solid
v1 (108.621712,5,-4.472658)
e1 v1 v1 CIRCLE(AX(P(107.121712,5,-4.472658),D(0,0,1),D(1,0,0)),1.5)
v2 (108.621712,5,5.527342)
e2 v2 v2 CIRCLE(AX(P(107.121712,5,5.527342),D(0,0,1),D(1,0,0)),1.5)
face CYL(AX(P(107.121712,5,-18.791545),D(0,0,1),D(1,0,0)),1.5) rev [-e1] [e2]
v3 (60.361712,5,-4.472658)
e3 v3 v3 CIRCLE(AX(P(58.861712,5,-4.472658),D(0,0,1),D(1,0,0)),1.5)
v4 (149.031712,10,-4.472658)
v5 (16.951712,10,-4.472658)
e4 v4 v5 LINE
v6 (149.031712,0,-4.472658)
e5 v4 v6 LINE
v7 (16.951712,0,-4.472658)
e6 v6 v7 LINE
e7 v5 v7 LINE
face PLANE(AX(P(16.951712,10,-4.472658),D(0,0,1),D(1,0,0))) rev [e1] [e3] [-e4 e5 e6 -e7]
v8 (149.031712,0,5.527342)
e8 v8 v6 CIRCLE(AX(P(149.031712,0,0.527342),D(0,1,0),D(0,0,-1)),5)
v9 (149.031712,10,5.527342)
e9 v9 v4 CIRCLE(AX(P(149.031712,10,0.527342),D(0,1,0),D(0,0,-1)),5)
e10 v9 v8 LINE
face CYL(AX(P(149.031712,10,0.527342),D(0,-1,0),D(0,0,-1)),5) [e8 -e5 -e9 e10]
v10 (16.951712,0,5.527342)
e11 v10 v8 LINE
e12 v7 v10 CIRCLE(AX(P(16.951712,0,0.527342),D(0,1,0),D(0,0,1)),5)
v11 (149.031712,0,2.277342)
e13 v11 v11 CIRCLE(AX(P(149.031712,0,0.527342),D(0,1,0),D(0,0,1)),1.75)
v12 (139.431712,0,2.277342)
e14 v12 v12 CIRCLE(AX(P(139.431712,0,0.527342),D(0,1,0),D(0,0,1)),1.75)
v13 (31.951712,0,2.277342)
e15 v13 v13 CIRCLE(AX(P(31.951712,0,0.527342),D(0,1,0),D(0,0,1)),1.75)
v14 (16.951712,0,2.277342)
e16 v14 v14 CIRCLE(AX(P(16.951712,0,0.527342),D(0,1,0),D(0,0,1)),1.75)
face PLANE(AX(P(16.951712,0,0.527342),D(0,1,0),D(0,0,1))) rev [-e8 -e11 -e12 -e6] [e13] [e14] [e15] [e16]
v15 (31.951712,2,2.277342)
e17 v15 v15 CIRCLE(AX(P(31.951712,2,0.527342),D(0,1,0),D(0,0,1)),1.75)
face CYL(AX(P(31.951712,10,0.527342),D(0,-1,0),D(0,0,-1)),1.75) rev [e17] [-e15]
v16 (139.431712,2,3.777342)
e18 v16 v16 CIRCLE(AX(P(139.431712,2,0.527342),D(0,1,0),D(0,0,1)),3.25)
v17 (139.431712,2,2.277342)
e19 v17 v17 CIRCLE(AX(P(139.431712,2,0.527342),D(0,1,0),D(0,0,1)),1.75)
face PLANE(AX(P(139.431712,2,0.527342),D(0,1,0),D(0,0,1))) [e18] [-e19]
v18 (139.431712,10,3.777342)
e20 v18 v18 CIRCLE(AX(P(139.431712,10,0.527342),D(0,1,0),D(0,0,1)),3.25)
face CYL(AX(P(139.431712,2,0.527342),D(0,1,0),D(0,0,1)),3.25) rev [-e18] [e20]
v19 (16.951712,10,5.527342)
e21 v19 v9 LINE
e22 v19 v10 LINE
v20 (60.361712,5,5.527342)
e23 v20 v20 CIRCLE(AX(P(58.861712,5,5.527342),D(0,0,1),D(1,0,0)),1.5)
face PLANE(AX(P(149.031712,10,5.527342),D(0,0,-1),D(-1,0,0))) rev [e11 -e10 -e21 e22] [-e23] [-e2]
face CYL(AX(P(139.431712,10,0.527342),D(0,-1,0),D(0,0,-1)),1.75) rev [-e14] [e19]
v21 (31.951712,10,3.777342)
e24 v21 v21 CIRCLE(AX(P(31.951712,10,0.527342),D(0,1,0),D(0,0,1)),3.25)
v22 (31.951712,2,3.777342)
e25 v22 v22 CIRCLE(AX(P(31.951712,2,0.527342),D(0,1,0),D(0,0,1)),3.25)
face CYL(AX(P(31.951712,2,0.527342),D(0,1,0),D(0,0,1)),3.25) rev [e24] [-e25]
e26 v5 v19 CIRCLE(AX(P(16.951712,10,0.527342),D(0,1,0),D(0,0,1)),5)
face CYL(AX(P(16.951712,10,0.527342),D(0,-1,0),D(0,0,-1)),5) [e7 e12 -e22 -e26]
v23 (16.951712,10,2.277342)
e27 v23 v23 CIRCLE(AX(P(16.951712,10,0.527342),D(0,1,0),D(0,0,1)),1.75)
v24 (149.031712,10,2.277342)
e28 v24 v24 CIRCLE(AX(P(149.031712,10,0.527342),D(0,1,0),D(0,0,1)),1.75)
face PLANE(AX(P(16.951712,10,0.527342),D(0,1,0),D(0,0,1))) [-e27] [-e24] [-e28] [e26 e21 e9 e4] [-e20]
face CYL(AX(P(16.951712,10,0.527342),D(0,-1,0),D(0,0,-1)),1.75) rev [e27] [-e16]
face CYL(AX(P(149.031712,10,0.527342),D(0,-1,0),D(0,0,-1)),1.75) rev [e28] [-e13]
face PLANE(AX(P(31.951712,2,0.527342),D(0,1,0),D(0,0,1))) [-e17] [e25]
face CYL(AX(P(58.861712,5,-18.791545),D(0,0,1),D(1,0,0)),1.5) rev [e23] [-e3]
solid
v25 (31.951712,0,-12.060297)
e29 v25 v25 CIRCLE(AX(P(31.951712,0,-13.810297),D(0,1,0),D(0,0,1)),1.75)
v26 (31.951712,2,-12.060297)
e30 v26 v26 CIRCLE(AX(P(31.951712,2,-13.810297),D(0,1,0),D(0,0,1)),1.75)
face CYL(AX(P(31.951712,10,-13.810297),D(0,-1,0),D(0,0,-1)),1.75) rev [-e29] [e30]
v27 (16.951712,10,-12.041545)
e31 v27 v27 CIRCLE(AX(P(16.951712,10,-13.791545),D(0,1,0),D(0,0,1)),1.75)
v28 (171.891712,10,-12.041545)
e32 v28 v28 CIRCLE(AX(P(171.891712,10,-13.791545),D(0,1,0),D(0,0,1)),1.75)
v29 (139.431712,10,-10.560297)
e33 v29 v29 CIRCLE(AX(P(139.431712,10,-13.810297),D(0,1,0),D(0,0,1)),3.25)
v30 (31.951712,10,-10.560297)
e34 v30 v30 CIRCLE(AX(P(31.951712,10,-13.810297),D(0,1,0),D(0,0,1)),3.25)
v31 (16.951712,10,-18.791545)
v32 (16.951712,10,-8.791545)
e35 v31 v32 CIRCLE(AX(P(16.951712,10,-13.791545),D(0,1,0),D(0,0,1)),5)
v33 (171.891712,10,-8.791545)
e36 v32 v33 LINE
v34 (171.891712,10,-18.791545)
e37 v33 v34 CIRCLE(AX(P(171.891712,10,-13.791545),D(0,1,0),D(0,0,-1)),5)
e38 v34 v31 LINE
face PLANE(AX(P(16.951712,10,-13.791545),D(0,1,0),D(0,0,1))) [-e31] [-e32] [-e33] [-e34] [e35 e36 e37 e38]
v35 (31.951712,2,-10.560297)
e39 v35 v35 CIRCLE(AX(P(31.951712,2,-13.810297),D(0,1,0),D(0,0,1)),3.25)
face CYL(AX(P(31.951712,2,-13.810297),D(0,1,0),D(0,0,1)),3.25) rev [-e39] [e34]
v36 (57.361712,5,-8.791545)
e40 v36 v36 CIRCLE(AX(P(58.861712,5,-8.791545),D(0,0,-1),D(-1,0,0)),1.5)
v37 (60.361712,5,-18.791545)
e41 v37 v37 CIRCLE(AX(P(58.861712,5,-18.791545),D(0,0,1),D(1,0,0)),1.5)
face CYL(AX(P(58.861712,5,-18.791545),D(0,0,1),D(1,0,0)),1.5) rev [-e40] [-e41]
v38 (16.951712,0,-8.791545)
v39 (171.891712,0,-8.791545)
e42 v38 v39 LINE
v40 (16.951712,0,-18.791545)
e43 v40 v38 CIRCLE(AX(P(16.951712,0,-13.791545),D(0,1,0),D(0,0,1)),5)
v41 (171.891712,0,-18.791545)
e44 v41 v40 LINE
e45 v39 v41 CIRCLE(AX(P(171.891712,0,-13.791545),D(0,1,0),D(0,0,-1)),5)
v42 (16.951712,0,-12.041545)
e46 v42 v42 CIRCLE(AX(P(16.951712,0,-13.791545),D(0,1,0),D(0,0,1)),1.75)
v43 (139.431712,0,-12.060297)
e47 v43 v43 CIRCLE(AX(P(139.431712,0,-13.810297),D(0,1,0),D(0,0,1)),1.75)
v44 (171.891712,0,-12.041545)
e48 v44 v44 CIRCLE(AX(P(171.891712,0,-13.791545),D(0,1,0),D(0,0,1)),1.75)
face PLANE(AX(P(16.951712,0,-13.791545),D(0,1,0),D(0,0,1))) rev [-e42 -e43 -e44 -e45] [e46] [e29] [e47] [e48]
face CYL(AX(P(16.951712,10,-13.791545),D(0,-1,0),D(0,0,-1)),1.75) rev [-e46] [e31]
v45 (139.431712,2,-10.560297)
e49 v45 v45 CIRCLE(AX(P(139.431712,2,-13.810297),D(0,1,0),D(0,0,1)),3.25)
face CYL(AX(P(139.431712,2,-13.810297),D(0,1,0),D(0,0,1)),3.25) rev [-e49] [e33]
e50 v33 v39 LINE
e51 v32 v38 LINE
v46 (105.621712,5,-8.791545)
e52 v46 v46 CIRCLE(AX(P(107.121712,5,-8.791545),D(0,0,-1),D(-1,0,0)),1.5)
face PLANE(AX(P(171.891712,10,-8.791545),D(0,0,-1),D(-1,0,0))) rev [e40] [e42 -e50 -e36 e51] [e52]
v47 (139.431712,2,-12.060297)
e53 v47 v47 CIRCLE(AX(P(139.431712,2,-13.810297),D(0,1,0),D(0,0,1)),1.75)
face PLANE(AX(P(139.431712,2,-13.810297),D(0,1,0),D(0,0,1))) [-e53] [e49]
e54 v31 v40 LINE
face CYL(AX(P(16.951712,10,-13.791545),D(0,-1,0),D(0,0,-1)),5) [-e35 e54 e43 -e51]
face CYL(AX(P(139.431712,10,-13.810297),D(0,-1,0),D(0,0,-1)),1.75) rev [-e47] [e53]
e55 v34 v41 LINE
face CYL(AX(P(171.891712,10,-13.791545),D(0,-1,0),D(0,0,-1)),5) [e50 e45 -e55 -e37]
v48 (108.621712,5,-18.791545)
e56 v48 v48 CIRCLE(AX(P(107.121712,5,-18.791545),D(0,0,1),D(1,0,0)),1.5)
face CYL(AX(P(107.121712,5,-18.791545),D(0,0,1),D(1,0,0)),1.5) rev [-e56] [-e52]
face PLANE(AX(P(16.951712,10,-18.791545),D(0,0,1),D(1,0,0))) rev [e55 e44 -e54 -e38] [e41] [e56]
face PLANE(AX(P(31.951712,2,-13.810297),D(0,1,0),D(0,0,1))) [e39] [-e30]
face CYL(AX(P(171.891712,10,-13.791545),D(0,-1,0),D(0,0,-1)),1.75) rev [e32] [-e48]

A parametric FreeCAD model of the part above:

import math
import FreeCAD as App
import Part
import Sketcher
from FreeCAD import Vector

doc = App.newDocument("Part")
body = doc.addObject("PartDesign::Body", "Body")

# Sketch on XZ plane
sketch1 = body.newObject("Sketcher::SketchObject", "Sketch")
sketch1.AttachmentSupport = (doc.getObject("XZ_Plane"), [""])
sketch1.MapMode = "FlatFace"
sketch1.addGeometry(Part.LineSegment(Vector(171.9, -18.8, 0), Vector(17, -18.8, 0)), False)
sketch1.addGeometry(Part.ArcOfCircle(Part.Circle(Vector(17, -13.8, 0), Vector(0, 0, 1), 5), math.radians(90), math.radians(270)), False)
sketch1.addGeometry(Part.LineSegment(Vector(17, -8.8, 0), Vector(171.9, -8.8, 0)), False)
sketch1.addGeometry(Part.ArcOfCircle(Part.Circle(Vector(171.9, -13.8, 0), Vector(0, 0, 1), 5), math.radians(-90), math.radians(90)), False)
sketch1.addGeometry(Part.Circle(Vector(171.9, -13.8, 0), Vector(0, 0, 1), 1.8), False)
sketch1.addGeometry(Part.Circle(Vector(17, -13.8, 0), Vector(0, 0, 1), 1.8), False)
sketch1.addGeometry(Part.Circle(Vector(139.4, -13.8, 0), Vector(0, 0, 1), 1.8), False)
sketch1.addGeometry(Part.Circle(Vector(32, -13.8, 0), Vector(0, 0, 1), 1.8), False)
sketch1.addConstraint(Sketcher.Constraint("Tangent", 0, 2, 1, 2))
sketch1.addConstraint(Sketcher.Constraint("Tangent", 1, 1, 2, 1))
sketch1.addConstraint(Sketcher.Constraint("Tangent", 2, 2, 3, 2))
sketch1.addConstraint(Sketcher.Constraint("Tangent", 3, 1, 0, 1))
sketch1.addConstraint(Sketcher.Constraint("Horizontal", 0))
sketch1.addConstraint(Sketcher.Constraint("Horizontal", 2))
sketch1.addConstraint(Sketcher.Constraint("Coincident", 4, 3, 3, 3))
sketch1.addConstraint(Sketcher.Constraint("Coincident", 5, 3, 1, 3))
sketch1.addConstraint(Sketcher.Constraint("Equal", 4, 5))
sketch1.addConstraint(Sketcher.Constraint("Equal", 5, 6))
sketch1.addConstraint(Sketcher.Constraint("Equal", 6, 7))
sketch1.addConstraint(Sketcher.Constraint("Horizontal", 6, 3, 7, 3))
sketch1.addConstraint(Sketcher.Constraint("Radius", 1, 5.0))
sketch1.addConstraint(Sketcher.Constraint("Diameter", 4, 3.5))
sketch1.addConstraint(Sketcher.Constraint("DistanceX", 1, 3, 7, 3, 15.0))
sketch1.addConstraint(Sketcher.Constraint("DistanceX", 0, 2, 0, 1, 154.94))
sketch1.addConstraint(Sketcher.Constraint("DistanceX", 6, 3, 3, 3, 32.46))
sketch1.addConstraint(Sketcher.Constraint("DistanceX", -1, 1, 1, 3, 16.951712))
sketch1.addConstraint(Sketcher.Constraint("DistanceY", 1, 3, -1, 1, 13.791545))
sketch1.addConstraint(Sketcher.Constraint("DistanceY", 6, 3, -1, 1, 13.810297))
pad1 = body.newObject("PartDesign::Pad", "Pad")
pad1.Profile = sketch1
pad1.Length = 10
pad1.Reversed = True
body2 = doc.addObject("PartDesign::Body", "Body001")

# Sketch on XZ plane
sketch2 = body2.newObject("Sketcher::SketchObject", "Sketch001")
sketch2.AttachmentSupport = (doc.getObject("XZ_Plane001"), [""])
sketch2.MapMode = "FlatFace"
sketch2.addGeometry(Part.LineSegment(Vector(149, -4.5, 0), Vector(17, -4.5, 0)), False)
sketch2.addGeometry(Part.ArcOfCircle(Part.Circle(Vector(17, 0.5, 0), Vector(0, 0, 1), 5), math.radians(90), math.radians(270)), False)
sketch2.addGeometry(Part.LineSegment(Vector(17, 5.5, 0), Vector(149, 5.5, 0)), False)
sketch2.addGeometry(Part.ArcOfCircle(Part.Circle(Vector(149, 0.5, 0), Vector(0, 0, 1), 5), math.radians(-90), math.radians(90)), False)
sketch2.addGeometry(Part.Circle(Vector(149, 0.5, 0), Vector(0, 0, 1), 1.8), False)
sketch2.addGeometry(Part.Circle(Vector(139.4, 0.5, 0), Vector(0, 0, 1), 1.8), False)
sketch2.addGeometry(Part.Circle(Vector(32, 0.5, 0), Vector(0, 0, 1), 1.8), False)
sketch2.addGeometry(Part.Circle(Vector(17, 0.5, 0), Vector(0, 0, 1), 1.8), False)
sketch2.addConstraint(Sketcher.Constraint("Tangent", 0, 2, 1, 2))
sketch2.addConstraint(Sketcher.Constraint("Tangent", 1, 1, 2, 1))
sketch2.addConstraint(Sketcher.Constraint("Tangent", 2, 2, 3, 2))
sketch2.addConstraint(Sketcher.Constraint("Tangent", 3, 1, 0, 1))
sketch2.addConstraint(Sketcher.Constraint("Horizontal", 0))
sketch2.addConstraint(Sketcher.Constraint("Horizontal", 2))
sketch2.addConstraint(Sketcher.Constraint("Coincident", 4, 3, 3, 3))
sketch2.addConstraint(Sketcher.Constraint("Coincident", 7, 3, 1, 3))
sketch2.addConstraint(Sketcher.Constraint("Equal", 4, 5))
sketch2.addConstraint(Sketcher.Constraint("Equal", 5, 6))
sketch2.addConstraint(Sketcher.Constraint("Equal", 6, 7))
sketch2.addConstraint(Sketcher.Constraint("Horizontal", 4, 3, 5, 3))
sketch2.addConstraint(Sketcher.Constraint("Horizontal", 5, 3, 6, 3))
sketch2.addConstraint(Sketcher.Constraint("Radius", 1, 5.0))
sketch2.addConstraint(Sketcher.Constraint("Diameter", 4, 3.5))
sketch2.addConstraint(Sketcher.Constraint("DistanceX", 1, 3, 6, 3, 15.0))
sketch2.addConstraint(Sketcher.Constraint("DistanceX", 0, 2, 0, 1, 132.08))
sketch2.addConstraint(Sketcher.Constraint("DistanceX", 5, 3, 3, 3, 9.6))
sketch2.addConstraint(Sketcher.Constraint("DistanceX", -1, 1, 1, 3, 16.951712))
sketch2.addConstraint(Sketcher.Constraint("DistanceY", -1, 1, 1, 3, 0.527342))
pad2 = body2.newObject("PartDesign::Pad", "Pad001")
pad2.Profile = sketch2
pad2.Length = 10
pad2.Reversed = True
body3 = doc.addObject("PartDesign::Body", "Body002")
body3.AllowCompound = True

# Sketch on XY plane
sketch3 = body3.newObject("Sketcher::SketchObject", "Sketch002")
sketch3.AttachmentSupport = (doc.getObject("XY_Plane002"), [""])
sketch3.MapMode = "FlatFace"
sketch3.AttachmentOffset = App.Placement(Vector(0, 0, 5.527342), App.Rotation())
sketch3.addGeometry(Part.Circle(Vector(58.9, 5, 0), Vector(0, 0, 1), 1.5), False)
sketch3.addGeometry(Part.Circle(Vector(107.1, 5, 0), Vector(0, 0, 1), 1.5), False)
sketch3.addConstraint(Sketcher.Constraint("Equal", 0, 1))
sketch3.addConstraint(Sketcher.Constraint("Horizontal", 0, 3, 1, 3))
sketch3.addConstraint(Sketcher.Constraint("Diameter", 0, 3.0))
sketch3.addConstraint(Sketcher.Constraint("DistanceY", -1, 1, 0, 3, 5.0))
sketch3.addConstraint(Sketcher.Constraint("DistanceX", 0, 3, 1, 3, 48.26))
sketch3.addConstraint(Sketcher.Constraint("DistanceX", -1, 1, 0, 3, 58.861712))
pad3 = body3.newObject("PartDesign::Pad", "Pad002")
pad3.Profile = sketch3
pad3.Length = 179.83536
pad3.Reversed = True
doc.recompute()

body4 = doc.addObject("PartDesign::Body", "Body003")
body4.BaseFeature = body3
boolean = body.newObject("PartDesign::Boolean", "Boolean")
boolean.Type = "Cut"
boolean.addObjects([body4])
doc.recompute()

boolean2 = body2.newObject("PartDesign::Boolean", "Boolean001")
boolean2.Type = "Cut"
boolean2.addObjects([body3])
body5 = doc.addObject("PartDesign::Body", "Body004")
body5.AllowCompound = True

# Sketch on XZ plane
sketch4 = body5.newObject("Sketcher::SketchObject", "Sketch003")
sketch4.AttachmentSupport = (doc.getObject("XZ_Plane004"), [""])
sketch4.MapMode = "FlatFace"
sketch4.AttachmentOffset = App.Placement(Vector(0, 0, -10), App.Rotation())
sketch4.addGeometry(Part.Circle(Vector(32, -13.8, 0), Vector(0, 0, 1), 3.2), False)
sketch4.addGeometry(Part.Circle(Vector(32, 0.5, 0), Vector(0, 0, 1), 3.2), False)
sketch4.addGeometry(Part.Circle(Vector(139.4, 0.5, 0), Vector(0, 0, 1), 3.2), False)
sketch4.addGeometry(Part.Circle(Vector(139.4, -13.8, 0), Vector(0, 0, 1), 3.2), False)
sketch4.addConstraint(Sketcher.Constraint("Equal", 0, 1))
sketch4.addConstraint(Sketcher.Constraint("Equal", 1, 2))
sketch4.addConstraint(Sketcher.Constraint("Equal", 2, 3))
sketch4.addConstraint(Sketcher.Constraint("Horizontal", 1, 3, 2, 3))
sketch4.addConstraint(Sketcher.Constraint("Horizontal", 0, 3, 3, 3))
sketch4.addConstraint(Sketcher.Constraint("Vertical", 0, 3, 1, 3))
sketch4.addConstraint(Sketcher.Constraint("Vertical", 2, 3, 3, 3))
sketch4.addConstraint(Sketcher.Constraint("Diameter", 0, 6.5))
sketch4.addConstraint(Sketcher.Constraint("DistanceX", 1, 3, 2, 3, 107.48))
sketch4.addConstraint(Sketcher.Constraint("DistanceX", -1, 1, 0, 3, 31.951712))
sketch4.addConstraint(Sketcher.Constraint("DistanceY", -1, 1, 1, 3, 0.527342))
sketch4.addConstraint(Sketcher.Constraint("DistanceY", 0, 3, 1, 3, 14.337639))
pad4 = body5.newObject("PartDesign::Pad", "Pad003")
pad4.Profile = sketch4
pad4.Length = 8
doc.recompute()

body6 = doc.addObject("PartDesign::Body", "Body005")
body6.BaseFeature = body5
boolean3 = body.newObject("PartDesign::Boolean", "Boolean002")
boolean3.Type = "Cut"
boolean3.addObjects([body6])
doc.recompute()

boolean4 = body2.newObject("PartDesign::Boolean", "Boolean003")
boolean4.Type = "Cut"
boolean4.addObjects([body5])

doc.recompute()
